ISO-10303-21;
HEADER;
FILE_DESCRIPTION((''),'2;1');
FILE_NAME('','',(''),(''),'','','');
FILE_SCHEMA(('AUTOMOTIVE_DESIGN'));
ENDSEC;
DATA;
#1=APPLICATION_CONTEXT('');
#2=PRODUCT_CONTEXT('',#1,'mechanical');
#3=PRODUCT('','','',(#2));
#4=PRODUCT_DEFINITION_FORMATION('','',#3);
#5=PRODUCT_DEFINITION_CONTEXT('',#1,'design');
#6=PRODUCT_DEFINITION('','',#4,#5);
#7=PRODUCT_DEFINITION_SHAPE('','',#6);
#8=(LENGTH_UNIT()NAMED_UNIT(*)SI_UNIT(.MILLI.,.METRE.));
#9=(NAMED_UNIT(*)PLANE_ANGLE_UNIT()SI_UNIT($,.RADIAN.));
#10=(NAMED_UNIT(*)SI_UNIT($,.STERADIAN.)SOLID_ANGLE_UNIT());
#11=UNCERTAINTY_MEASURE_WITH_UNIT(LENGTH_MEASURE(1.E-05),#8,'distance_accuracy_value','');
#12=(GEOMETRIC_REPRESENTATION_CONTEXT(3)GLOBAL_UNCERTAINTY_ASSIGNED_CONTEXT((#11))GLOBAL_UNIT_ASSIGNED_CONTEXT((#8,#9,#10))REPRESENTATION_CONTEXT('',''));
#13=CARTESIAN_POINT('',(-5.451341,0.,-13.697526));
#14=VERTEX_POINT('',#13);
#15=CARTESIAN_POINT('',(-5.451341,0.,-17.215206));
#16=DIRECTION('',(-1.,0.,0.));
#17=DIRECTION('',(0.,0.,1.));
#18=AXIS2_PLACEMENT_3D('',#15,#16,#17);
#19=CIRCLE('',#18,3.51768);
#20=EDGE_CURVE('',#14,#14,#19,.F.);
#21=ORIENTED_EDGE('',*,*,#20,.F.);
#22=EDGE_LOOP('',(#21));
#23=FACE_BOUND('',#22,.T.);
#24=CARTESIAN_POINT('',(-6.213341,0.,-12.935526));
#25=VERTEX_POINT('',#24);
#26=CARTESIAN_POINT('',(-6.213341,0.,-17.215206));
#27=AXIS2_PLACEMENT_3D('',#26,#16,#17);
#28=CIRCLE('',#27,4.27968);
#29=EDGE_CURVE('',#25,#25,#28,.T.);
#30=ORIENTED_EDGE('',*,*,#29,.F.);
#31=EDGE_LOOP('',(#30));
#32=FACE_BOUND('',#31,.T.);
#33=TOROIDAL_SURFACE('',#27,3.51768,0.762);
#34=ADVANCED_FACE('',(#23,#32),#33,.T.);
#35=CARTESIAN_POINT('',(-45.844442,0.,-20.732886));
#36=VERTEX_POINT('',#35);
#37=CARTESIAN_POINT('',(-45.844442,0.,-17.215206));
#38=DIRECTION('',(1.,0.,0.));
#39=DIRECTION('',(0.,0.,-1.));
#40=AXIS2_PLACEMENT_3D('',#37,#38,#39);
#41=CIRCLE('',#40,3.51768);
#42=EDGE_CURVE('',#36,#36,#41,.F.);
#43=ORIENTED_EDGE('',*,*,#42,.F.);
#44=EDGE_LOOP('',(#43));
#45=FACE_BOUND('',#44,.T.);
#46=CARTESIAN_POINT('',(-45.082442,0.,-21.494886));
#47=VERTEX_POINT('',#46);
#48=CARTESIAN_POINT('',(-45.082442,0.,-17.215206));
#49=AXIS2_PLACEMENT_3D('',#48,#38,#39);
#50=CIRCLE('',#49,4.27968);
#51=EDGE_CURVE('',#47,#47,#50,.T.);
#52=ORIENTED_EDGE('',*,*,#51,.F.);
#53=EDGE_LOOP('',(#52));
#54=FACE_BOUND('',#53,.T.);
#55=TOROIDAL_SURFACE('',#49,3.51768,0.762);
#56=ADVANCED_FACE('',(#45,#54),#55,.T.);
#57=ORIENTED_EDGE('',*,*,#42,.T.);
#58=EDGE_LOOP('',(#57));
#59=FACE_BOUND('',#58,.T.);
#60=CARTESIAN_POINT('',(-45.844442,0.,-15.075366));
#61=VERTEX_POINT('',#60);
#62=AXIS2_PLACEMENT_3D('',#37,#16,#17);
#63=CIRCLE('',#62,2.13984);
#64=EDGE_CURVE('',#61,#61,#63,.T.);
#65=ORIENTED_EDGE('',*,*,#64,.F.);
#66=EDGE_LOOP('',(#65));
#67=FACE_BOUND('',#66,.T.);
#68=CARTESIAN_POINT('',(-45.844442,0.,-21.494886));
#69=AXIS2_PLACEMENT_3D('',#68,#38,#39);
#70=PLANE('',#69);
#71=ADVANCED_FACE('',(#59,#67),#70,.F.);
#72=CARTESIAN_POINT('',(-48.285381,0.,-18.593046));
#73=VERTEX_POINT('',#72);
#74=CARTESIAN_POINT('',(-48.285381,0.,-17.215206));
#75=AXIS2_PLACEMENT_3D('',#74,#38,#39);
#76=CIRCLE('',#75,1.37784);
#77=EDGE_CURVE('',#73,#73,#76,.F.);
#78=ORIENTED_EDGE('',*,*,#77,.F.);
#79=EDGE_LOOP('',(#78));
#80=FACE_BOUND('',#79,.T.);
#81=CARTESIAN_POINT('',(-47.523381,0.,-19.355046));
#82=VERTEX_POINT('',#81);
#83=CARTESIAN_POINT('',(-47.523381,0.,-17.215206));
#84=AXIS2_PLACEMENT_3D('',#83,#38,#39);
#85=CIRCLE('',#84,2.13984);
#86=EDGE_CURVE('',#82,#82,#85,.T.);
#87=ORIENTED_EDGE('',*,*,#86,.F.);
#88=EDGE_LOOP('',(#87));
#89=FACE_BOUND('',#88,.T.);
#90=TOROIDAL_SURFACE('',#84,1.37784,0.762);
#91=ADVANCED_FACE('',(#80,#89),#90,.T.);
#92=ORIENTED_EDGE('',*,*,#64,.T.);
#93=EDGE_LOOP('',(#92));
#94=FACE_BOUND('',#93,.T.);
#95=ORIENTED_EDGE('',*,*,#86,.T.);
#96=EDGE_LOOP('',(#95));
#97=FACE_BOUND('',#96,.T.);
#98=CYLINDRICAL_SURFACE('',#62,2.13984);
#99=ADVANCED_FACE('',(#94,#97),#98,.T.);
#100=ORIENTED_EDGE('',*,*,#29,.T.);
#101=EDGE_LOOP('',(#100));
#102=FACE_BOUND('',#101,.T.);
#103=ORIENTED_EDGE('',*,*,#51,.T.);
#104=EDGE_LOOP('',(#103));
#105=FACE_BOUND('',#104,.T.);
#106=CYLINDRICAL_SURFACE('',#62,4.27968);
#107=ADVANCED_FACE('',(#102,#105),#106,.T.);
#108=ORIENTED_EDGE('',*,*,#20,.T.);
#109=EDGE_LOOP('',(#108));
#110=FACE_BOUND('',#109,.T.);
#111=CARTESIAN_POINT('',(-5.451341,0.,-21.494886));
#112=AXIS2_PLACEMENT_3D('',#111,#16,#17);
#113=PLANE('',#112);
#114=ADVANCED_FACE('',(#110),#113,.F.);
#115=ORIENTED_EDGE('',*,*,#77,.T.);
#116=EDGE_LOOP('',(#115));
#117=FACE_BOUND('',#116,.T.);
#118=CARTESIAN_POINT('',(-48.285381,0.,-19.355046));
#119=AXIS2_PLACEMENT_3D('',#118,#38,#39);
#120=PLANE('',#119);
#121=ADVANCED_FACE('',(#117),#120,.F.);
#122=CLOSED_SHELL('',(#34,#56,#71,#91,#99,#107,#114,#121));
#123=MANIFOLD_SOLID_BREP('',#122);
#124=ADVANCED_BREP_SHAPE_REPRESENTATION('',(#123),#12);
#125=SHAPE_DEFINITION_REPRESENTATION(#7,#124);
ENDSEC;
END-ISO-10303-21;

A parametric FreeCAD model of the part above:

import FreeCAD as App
import Part
import Sketcher
from FreeCAD import Vector
Q = App.Units.Quantity


def edges_at(feature, points):
    """Names of the edges that pass closest to the given points."""
    edges = feature.Shape.Edges
    near = lambda p: min(range(len(edges)), key=lambda i: edges[i].distToShape(Part.Vertex(*p))[0])
    return sorted({f"Edge{near(p) + 1}" for p in points})


def add_polygon(sketch, points):
    """Adds a closed chain of lines whose ends are joined by coincident constraints."""
    first, n = sketch.GeometryCount, len(points)
    for a, b in zip(points, points[1:] + points[:1]):
        sketch.addGeometry(Part.LineSegment(App.Vector(*a, 0), App.Vector(*b, 0)), False)
    for i in range(n):
        sketch.addConstraint(Sketcher.Constraint("Coincident", first + i, 2, first + (i + 1) % n, 1))

doc = App.newDocument("Part")
params = doc.addObject("Spreadsheet::Sheet", "Params")
for row, (alias, value) in enumerate([
    ("revolution_angle", "360 deg"),
    ("fillet_radius", "0.03 in"),
], start=1):
    params.set(f"A{row}", alias)
    params.set(f"B{row}", "=" + value)
    params.setAlias(f"B{row}", alias)

body = doc.addObject("PartDesign::Body", "Body")

# Sketch on XZ plane
sketch1 = body.newObject("Sketcher::SketchObject", "Sketch")
sketch1.AttachmentSupport = (doc.getObject("XZ_Plane"), [""])
sketch1.MapMode = "FlatFace"
add_polygon(sketch1, [(-5.5, -21.5), (-45.8, -21.5), (-45.8, -19.4), (-48.3, -19.4), (-48.3, -17.2), (-5.5, -17.2)])  # lines 0-5
sketch1.addGeometry(Part.LineSegment(Vector(-48.3, -17.2, 0), Vector(-5.5, -17.2, 0)), True)  # axis
sketch1.addConstraint([
    Sketcher.Constraint("Horizontal", 0),
    Sketcher.Constraint("Vertical", 1),
    Sketcher.Constraint("Horizontal", 2),
    Sketcher.Constraint("Vertical", 3),
    Sketcher.Constraint("Horizontal", 4),
    Sketcher.Constraint("Vertical", 5),
    Sketcher.Constraint("Horizontal", 6),
    Sketcher.Constraint("Coincident", 6, 1, 3, 2),
    Sketcher.Constraint("Vertical", 5, 2, 6, 2),
    Sketcher.Constraint("Equal", 1, 3),
    Sketcher.Constraint("DistanceX", 2, 2, 2, 1, Q("0.0961 in")),
    Sketcher.Constraint("DistanceX", 0, 2, 0, 1, Q("40.393101 mm")),
    Sketcher.Constraint("DistanceY", 1, 1, 1, 2, Q("2.13984 mm")),
    Sketcher.Constraint("DistanceX", 2, 2, -1, 1, Q("48.285381 mm")),
    Sketcher.Constraint("DistanceY", 0, 2, -1, 1, Q("21.494886 mm")),
])
revolution = body.newObject("PartDesign::Revolution", "Revolution")
revolution.Profile = sketch1
revolution.ReferenceAxis = (sketch1, ["Axis0"])
revolution.setExpression("Angle", "Params.revolution_angle")
doc.recompute()

fillet = body.newObject("PartDesign::Fillet", "Fillet")
fillet.Base = (revolution, edges_at(revolution, [(-48.285, 0, -15.075), (-5.451, 0, -12.936), (-45.844, 0, -12.936)]))
fillet.setExpression("Radius", "Params.fillet_radius")

doc.recompute()
